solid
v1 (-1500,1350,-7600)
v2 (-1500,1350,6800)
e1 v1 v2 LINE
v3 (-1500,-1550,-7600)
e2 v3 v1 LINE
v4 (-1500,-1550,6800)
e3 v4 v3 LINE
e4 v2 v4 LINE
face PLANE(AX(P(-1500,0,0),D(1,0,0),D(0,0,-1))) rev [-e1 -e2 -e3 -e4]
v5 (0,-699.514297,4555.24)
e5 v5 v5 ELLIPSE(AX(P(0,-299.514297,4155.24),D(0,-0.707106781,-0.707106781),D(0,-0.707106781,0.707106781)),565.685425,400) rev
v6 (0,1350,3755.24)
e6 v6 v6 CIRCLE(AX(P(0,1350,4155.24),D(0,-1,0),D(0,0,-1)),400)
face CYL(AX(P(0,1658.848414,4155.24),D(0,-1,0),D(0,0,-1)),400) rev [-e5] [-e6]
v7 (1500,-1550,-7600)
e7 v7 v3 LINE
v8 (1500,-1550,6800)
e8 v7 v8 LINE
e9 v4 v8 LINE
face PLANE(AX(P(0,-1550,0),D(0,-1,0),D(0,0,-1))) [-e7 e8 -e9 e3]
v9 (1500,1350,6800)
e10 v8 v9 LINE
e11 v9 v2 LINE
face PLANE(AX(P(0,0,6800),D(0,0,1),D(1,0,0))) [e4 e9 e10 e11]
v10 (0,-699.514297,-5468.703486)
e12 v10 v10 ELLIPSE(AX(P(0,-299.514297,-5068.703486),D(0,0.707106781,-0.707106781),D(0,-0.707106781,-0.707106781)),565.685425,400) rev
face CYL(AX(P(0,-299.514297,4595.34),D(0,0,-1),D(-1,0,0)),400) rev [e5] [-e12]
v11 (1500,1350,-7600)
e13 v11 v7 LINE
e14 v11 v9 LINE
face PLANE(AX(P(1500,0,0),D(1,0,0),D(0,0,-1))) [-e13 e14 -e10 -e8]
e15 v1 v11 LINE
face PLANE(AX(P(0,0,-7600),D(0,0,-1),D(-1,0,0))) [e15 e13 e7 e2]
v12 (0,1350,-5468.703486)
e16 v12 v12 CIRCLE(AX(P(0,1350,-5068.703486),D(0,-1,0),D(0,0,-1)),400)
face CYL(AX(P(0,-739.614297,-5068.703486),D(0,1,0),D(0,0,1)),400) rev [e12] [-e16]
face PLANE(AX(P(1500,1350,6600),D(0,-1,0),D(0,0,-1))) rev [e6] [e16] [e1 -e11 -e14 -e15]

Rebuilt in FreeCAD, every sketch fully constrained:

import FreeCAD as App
import Part
import Sketcher
from FreeCAD import Vector


def add_polygon(sketch, points):
    """Adds a closed chain of lines whose ends are joined by coincident constraints."""
    first, n = sketch.GeometryCount, len(points)
    for a, b in zip(points, points[1:] + points[:1]):
        sketch.addGeometry(Part.LineSegment(App.Vector(*a, 0), App.Vector(*b, 0)), False)
    for i in range(n):
        sketch.addConstraint(Sketcher.Constraint("Coincident", first + i, 2, first + (i + 1) % n, 1))

doc = App.newDocument("Part")
params = doc.addObject("Spreadsheet::Sheet", "Params")
for row, (alias, value) in enumerate([
    ("sketch1_width", "2700 mm"),
    ("sketch1_height", "13200 mm"),
    ("pad1_length", "3000 mm"),
    ("sketch2_diameter", "800 mm"),
    ("sketch4_width", "3000 mm"),
    ("sketch4_height", "13200 mm"),
    ("pad2_length", "200 mm"),
    ("sketch5_width", "3000 mm"),
    ("sketch5_height", "2900 mm"),
    ("pad3_length", "200 mm"),
    ("sketch6_width", "3000 mm"),
    ("sketch6_height", "2900 mm"),
    ("pad4_length", "1000 mm"),
], start=1):
    params.set(f"A{row}", alias)
    params.set(f"B{row}", "=" + value)
    params.setAlias(f"B{row}", alias)

body = doc.addObject("PartDesign::Body", "Body")

# Sketch on YZ plane
sketch1 = body.newObject("Sketcher::SketchObject", "Sketch")
sketch1.AttachmentSupport = (doc.getObject("YZ_Plane"), [""])
sketch1.MapMode = "FlatFace"
add_polygon(sketch1, [(1350, 6600), (-1350, 6600), (-1350, -6600), (1350, -6600)])  # lines 0-3
sketch1.addConstraint(Sketcher.Constraint("Horizontal", 0))
sketch1.addConstraint(Sketcher.Constraint("Vertical", 1))
sketch1.addConstraint(Sketcher.Constraint("Horizontal", 2))
sketch1.addConstraint(Sketcher.Constraint("Vertical", 3))
sketch1.addConstraint(Sketcher.Constraint("Symmetric", 0, 2, 2, 2, -1, 1))
sketch1.addConstraint(Sketcher.Constraint("DistanceX", 0, 2, 0, 1, 2700.0))
sketch1.addConstraint(Sketcher.Constraint("DistanceY", 1, 2, 1, 1, 13200.0))
sketch1.setExpression("Constraints[9]", "Params.sketch1_width")
sketch1.setExpression("Constraints[10]", "Params.sketch1_height")
pad1 = body.newObject("PartDesign::Pad", "Pad")
pad1.Profile = sketch1
pad1.setExpression("Length", "Params.pad1_length")
pad1.Midplane = True

# Sketch on XZ plane
sketch2 = body.newObject("Sketcher::SketchObject", "Sketch001")
sketch2.AttachmentSupport = (doc.getObject("XZ_Plane"), [""])
sketch2.MapMode = "FlatFace"
sketch2.AttachmentOffset = App.Placement(Vector(0, 0, -1658.848414), App.Rotation())
sketch2.addGeometry(Part.Circle(Vector(0, 4155.24, 0), Vector(0, 0, 1), 400), False)
sketch2.addConstraint(Sketcher.Constraint("PointOnObject", 0, 3, -2))
sketch2.addConstraint(Sketcher.Constraint("Diameter", 0, 800.0))
sketch2.addConstraint(Sketcher.Constraint("DistanceY", -1, 1, 0, 3, 4155.24))
sketch2.setExpression("Constraints[1]", "Params.sketch2_diameter")

# Sketch on YZ plane
sketch3 = body.newObject("Sketcher::SketchObject", "Sketch002")
sketch3.AttachmentSupport = (doc.getObject("YZ_Plane"), [""])
sketch3.MapMode = "FlatFace"
sketch3.addGeometry(Part.LineSegment(Vector(1658.848414, 4155.24, 0), Vector(-299.514297, 4155.24, 0)), False)
sketch3.addGeometry(Part.LineSegment(Vector(-299.514297, 4155.24, 0), Vector(-299.514297, -5068.703486, 0)), False)
sketch3.addGeometry(Part.LineSegment(Vector(-299.514297, -5068.703486, 0), Vector(1658.848414, -5068.703486, 0)), False)
sketch3.addConstraint(Sketcher.Constraint("Coincident", 0, 2, 1, 1))
sketch3.addConstraint(Sketcher.Constraint("Coincident", 1, 2, 2, 1))
sketch3.addConstraint(Sketcher.Constraint("Horizontal", 0))
sketch3.addConstraint(Sketcher.Constraint("Vertical", 1))
sketch3.addConstraint(Sketcher.Constraint("Horizontal", 2))
sketch3.addConstraint(Sketcher.Constraint("Vertical", 0, 1, 2, 2))
sketch3.addConstraint(Sketcher.Constraint("DistanceY", -1, 1, 0, 1, 4155.24))
sketch3.addConstraint(Sketcher.Constraint("DistanceX", 0, 2, 0, 1, 1958.362711))
sketch3.addConstraint(Sketcher.Constraint("DistanceY", 1, 2, 1, 1, 9223.943486))
sketch3.addConstraint(Sketcher.Constraint("DistanceX", -1, 1, 0, 1, 1658.848414))
doc.recompute()

subtractivepipe = body.newObject("PartDesign::SubtractivePipe", "SubtractivePipe")
subtractivepipe.Profile = sketch2
subtractivepipe.Spine = (sketch3, ["Edge1", "Edge2", "Edge3"])
subtractivepipe.Transition = "Right corner"

# Sketch on XZ plane
sketch4 = body.newObject("Sketcher::SketchObject", "Sketch003")
sketch4.AttachmentSupport = (doc.getObject("XZ_Plane"), [""])
sketch4.MapMode = "FlatFace"
sketch4.AttachmentOffset = App.Placement(Vector(0, 0, 1350), App.Rotation())
add_polygon(sketch4, [(-1500, 6600), (-1500, -6600), (1500, -6600), (1500, 6600)])  # lines 0-3
sketch4.addConstraint(Sketcher.Constraint("Vertical", 0))
sketch4.addConstraint(Sketcher.Constraint("Horizontal", 1))
sketch4.addConstraint(Sketcher.Constraint("Vertical", 2))
sketch4.addConstraint(Sketcher.Constraint("Horizontal", 3))
sketch4.addConstraint(Sketcher.Constraint("Symmetric", 0, 2, 2, 2, -1, 1))
sketch4.addConstraint(Sketcher.Constraint("DistanceX", 1, 1, 1, 2, 3000.0))
sketch4.addConstraint(Sketcher.Constraint("DistanceY", 0, 2, 0, 1, 13200.0))
sketch4.setExpression("Constraints[9]", "Params.sketch4_width")
sketch4.setExpression("Constraints[10]", "Params.sketch4_height")
pad2 = body.newObject("PartDesign::Pad", "Pad001")
pad2.Profile = sketch4
pad2.setExpression("Length", "Params.pad2_length")

# Sketch on XY plane
sketch5 = body.newObject("Sketcher::SketchObject", "Sketch004")
sketch5.AttachmentSupport = (doc.getObject("XY_Plane"), [""])
sketch5.MapMode = "FlatFace"
sketch5.AttachmentOffset = App.Placement(Vector(0, 0, 6600), App.Rotation())
add_polygon(sketch5, [(-1500, 1350), (-1500, -1550), (1500, -1550), (1500, 1350)])  # lines 0-3
sketch5.addConstraint(Sketcher.Constraint("Vertical", 0))
sketch5.addConstraint(Sketcher.Constraint("Horizontal", 1))
sketch5.addConstraint(Sketcher.Constraint("Vertical", 2))
sketch5.addConstraint(Sketcher.Constraint("Horizontal", 3))
sketch5.addConstraint(Sketcher.Constraint("DistanceX", 1, 1, 1, 2, 3000.0))
sketch5.addConstraint(Sketcher.Constraint("DistanceY", 0, 2, 0, 1, 2900.0))
sketch5.addConstraint(Sketcher.Constraint("DistanceX", 0, 2, -1, 1, 1500.0))
sketch5.addConstraint(Sketcher.Constraint("DistanceY", 0, 2, -1, 1, 1550.0))
sketch5.setExpression("Constraints[8]", "Params.sketch5_width")
sketch5.setExpression("Constraints[9]", "Params.sketch5_height")
pad3 = body.newObject("PartDesign::Pad", "Pad002")
pad3.Profile = sketch5
pad3.setExpression("Length", "Params.pad3_length")

# Sketch on XY plane
sketch6 = body.newObject("Sketcher::SketchObject", "Sketch005")
sketch6.AttachmentSupport = (doc.getObject("XY_Plane"), [""])
sketch6.MapMode = "FlatFace"
sketch6.AttachmentOffset = App.Placement(Vector(0, 0, -6600), App.Rotation())
add_polygon(sketch6, [(1500, 1350), (1500, -1550), (-1500, -1550), (-1500, 1350)])  # lines 0-3
sketch6.addConstraint(Sketcher.Constraint("Vertical", 0))
sketch6.addConstraint(Sketcher.Constraint("Horizontal", 1))
sketch6.addConstraint(Sketcher.Constraint("Vertical", 2))
sketch6.addConstraint(Sketcher.Constraint("Horizontal", 3))
sketch6.addConstraint(Sketcher.Constraint("DistanceX", 1, 2, 1, 1, 3000.0))
sketch6.addConstraint(Sketcher.Constraint("DistanceY", 0, 2, 0, 1, 2900.0))
sketch6.addConstraint(Sketcher.Constraint("DistanceX", -1, 1, 0, 2, 1500.0))
sketch6.addConstraint(Sketcher.Constraint("DistanceY", 0, 2, -1, 1, 1550.0))
sketch6.setExpression("Constraints[8]", "Params.sketch6_width")
sketch6.setExpression("Constraints[9]", "Params.sketch6_height")
pad4 = body.newObject("PartDesign::Pad", "Pad003")
pad4.Profile = sketch6
pad4.setExpression("Length", "Params.pad4_length")
pad4.Reversed = True

doc.recompute()
